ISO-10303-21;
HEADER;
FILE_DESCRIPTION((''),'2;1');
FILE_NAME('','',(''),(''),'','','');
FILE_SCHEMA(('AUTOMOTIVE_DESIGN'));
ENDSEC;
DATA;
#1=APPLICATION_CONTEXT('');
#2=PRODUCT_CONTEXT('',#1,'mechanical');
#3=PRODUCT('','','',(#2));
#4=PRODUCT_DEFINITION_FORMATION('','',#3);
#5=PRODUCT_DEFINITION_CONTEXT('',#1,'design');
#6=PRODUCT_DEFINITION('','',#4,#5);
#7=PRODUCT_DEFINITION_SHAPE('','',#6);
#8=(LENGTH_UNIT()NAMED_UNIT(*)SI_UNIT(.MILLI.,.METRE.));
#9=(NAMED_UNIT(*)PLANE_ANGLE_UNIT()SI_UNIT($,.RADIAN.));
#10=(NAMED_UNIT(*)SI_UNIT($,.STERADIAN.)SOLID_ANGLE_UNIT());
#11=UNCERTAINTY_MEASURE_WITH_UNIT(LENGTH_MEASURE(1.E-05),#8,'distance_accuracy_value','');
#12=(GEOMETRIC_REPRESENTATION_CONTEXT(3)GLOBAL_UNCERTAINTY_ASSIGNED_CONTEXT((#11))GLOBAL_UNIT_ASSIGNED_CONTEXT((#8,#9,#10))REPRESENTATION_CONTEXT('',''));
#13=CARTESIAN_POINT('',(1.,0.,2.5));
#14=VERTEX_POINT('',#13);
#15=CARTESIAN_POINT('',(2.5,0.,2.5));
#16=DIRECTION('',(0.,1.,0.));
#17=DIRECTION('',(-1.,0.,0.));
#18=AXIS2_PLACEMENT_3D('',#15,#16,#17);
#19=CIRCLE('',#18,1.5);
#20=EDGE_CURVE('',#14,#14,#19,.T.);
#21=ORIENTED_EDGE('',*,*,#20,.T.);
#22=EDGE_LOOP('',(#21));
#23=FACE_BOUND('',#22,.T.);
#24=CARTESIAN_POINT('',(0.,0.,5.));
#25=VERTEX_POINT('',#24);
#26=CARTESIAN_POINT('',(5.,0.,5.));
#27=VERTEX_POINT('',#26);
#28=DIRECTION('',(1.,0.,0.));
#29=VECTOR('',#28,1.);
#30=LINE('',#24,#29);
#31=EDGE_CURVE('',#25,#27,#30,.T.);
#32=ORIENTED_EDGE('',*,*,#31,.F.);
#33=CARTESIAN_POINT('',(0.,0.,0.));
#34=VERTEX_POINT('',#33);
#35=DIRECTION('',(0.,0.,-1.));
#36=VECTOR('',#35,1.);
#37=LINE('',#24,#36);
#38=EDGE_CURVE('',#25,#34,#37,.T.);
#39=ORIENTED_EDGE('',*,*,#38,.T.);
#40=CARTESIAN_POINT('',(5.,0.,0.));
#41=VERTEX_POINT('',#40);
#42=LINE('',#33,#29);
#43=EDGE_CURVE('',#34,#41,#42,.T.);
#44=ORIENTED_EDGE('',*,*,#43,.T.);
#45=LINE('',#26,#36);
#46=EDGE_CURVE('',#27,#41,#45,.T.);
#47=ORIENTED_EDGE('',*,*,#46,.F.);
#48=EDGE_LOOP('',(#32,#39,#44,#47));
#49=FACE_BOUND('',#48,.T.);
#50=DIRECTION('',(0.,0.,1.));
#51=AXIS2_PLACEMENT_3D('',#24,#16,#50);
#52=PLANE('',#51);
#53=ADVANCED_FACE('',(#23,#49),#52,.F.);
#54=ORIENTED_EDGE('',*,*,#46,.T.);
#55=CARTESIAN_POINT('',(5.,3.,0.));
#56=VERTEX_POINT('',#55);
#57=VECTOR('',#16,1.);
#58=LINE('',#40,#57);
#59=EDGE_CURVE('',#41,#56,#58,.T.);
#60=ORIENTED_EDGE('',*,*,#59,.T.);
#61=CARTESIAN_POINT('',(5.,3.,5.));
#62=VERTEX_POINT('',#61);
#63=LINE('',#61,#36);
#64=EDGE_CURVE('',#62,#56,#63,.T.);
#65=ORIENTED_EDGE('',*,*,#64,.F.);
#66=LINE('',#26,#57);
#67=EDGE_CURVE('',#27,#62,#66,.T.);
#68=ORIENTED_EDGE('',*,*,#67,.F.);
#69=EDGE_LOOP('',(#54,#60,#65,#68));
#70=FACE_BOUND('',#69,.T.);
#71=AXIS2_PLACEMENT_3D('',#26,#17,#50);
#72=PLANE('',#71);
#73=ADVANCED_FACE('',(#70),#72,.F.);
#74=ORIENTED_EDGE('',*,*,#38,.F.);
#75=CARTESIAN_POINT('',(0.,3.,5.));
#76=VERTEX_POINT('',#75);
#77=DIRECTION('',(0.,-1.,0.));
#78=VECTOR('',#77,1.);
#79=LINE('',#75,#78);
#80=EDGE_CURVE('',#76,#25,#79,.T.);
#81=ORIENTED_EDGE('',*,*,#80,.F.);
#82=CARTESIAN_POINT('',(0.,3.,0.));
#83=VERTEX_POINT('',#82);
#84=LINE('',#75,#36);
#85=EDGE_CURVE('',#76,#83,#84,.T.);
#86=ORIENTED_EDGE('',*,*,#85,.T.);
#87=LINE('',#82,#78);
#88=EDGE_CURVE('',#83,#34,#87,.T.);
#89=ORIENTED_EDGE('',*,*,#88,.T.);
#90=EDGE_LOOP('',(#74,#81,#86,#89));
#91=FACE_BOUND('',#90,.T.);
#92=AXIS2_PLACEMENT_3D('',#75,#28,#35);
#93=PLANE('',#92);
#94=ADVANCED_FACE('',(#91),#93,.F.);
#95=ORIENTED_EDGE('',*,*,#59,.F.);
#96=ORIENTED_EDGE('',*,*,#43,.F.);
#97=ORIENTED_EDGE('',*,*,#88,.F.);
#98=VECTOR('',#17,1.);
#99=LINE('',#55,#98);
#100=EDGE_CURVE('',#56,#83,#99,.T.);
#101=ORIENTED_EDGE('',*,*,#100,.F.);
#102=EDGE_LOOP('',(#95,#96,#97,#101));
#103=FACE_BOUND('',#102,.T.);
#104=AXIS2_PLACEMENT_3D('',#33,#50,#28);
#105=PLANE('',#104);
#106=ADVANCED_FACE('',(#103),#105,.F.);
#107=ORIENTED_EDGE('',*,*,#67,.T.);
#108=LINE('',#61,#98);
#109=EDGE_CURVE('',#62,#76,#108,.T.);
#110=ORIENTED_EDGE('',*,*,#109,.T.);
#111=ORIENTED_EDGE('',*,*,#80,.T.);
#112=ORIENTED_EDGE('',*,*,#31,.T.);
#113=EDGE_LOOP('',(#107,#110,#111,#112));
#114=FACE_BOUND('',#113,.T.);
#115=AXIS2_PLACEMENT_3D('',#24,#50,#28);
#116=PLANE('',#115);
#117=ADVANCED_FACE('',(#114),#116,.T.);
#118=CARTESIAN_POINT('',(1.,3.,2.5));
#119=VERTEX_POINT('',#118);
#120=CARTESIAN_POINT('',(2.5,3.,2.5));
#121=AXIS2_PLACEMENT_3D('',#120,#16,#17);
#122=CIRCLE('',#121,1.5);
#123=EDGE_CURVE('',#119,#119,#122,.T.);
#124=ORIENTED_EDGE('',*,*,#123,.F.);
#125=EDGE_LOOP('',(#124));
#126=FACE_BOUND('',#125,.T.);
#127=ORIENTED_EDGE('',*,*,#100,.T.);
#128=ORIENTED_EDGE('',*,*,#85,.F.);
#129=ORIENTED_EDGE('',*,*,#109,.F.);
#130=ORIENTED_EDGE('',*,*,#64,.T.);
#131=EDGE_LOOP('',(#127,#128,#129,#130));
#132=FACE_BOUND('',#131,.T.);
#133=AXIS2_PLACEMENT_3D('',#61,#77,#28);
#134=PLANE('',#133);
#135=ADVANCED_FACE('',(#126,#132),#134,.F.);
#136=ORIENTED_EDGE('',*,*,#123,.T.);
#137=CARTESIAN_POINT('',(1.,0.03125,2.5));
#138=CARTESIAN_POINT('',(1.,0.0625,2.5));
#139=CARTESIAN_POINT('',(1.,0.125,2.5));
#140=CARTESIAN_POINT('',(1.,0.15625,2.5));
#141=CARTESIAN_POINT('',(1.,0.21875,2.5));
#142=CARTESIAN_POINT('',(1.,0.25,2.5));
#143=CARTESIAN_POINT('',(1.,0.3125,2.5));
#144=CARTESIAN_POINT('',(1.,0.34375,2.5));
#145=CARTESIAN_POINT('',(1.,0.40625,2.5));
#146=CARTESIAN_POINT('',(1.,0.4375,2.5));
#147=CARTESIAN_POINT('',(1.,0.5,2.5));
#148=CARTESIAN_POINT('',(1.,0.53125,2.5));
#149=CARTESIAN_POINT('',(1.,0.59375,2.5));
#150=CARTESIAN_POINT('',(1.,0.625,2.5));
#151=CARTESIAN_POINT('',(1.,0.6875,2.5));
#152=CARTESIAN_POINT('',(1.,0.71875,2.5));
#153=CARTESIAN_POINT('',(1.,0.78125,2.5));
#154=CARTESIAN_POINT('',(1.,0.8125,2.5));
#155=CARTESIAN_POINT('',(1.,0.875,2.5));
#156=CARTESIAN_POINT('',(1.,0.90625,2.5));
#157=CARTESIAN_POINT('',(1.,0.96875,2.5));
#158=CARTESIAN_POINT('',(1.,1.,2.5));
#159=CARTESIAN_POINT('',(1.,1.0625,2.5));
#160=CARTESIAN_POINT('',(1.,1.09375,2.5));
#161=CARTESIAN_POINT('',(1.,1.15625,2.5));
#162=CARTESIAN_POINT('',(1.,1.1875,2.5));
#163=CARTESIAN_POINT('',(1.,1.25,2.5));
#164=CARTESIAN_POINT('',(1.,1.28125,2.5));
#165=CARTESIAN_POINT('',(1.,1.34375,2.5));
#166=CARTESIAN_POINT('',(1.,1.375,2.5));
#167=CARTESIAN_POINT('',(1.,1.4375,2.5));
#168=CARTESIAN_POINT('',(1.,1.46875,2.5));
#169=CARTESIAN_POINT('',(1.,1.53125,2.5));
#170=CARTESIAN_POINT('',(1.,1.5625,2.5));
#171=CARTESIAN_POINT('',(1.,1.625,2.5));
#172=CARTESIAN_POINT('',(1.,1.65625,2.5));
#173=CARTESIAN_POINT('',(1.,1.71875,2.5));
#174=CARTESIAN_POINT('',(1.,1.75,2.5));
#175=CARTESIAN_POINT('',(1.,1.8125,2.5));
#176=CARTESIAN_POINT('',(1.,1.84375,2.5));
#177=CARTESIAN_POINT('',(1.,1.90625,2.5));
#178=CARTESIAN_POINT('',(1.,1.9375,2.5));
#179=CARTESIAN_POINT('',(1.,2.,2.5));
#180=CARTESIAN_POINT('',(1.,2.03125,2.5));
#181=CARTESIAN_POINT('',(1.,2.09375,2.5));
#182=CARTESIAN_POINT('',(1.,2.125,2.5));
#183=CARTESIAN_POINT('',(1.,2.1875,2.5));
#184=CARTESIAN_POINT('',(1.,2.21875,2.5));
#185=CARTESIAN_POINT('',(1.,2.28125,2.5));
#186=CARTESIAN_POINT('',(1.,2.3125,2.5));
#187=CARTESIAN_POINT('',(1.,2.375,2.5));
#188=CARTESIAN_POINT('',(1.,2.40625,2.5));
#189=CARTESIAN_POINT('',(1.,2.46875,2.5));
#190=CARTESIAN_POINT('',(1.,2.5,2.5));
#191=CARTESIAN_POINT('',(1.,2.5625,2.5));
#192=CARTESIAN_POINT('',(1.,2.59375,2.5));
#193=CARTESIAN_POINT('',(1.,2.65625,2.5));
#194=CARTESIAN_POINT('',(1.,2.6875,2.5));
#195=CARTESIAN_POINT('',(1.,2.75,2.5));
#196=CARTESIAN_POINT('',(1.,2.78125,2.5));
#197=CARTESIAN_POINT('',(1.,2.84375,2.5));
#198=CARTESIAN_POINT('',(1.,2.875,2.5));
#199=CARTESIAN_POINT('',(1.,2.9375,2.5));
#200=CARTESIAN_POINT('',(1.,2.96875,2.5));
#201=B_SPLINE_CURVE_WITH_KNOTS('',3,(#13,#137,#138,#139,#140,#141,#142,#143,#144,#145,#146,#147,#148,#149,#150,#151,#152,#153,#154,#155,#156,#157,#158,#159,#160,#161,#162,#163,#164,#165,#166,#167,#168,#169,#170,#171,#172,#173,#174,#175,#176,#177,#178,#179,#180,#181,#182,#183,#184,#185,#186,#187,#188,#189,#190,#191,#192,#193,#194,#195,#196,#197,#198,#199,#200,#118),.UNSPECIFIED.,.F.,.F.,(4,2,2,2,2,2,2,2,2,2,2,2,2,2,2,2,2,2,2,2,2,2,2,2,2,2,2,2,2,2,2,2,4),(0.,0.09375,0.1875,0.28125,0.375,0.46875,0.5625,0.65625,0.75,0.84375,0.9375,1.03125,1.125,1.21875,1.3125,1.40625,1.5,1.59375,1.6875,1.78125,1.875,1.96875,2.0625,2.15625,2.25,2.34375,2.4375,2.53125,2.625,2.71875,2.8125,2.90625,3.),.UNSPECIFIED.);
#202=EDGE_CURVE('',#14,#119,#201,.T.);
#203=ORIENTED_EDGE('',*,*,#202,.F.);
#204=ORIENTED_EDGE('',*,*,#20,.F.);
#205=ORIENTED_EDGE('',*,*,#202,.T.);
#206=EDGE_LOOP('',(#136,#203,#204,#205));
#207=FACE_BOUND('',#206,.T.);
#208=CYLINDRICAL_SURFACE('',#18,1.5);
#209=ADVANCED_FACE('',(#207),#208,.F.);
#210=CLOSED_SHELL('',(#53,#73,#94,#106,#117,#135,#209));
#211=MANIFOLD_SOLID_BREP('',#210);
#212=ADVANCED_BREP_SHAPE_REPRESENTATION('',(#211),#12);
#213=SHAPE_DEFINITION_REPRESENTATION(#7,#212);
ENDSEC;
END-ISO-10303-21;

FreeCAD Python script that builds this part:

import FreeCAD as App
import Part
import Sketcher
from FreeCAD import Vector
Q = App.Units.Quantity


def add_polygon(sketch, points):
    """Adds a closed chain of lines whose ends are joined by coincident constraints."""
    first, n = sketch.GeometryCount, len(points)
    for a, b in zip(points, points[1:] + points[:1]):
        sketch.addGeometry(Part.LineSegment(App.Vector(*a, 0), App.Vector(*b, 0)), False)
    for i in range(n):
        sketch.addConstraint(Sketcher.Constraint("Coincident", first + i, 2, first + (i + 1) % n, 1))

doc = App.newDocument("Part")
params = doc.addObject("Spreadsheet::Sheet", "Params")
for row, (alias, value) in enumerate([
    ("sketch1_width", "5 mm"),
    ("sketch1_height", "3 mm"),
    ("pad1_length", "5 mm"),
    ("sketch2_diameter", "3 mm"),
], start=1):
    params.set(f"A{row}", alias)
    params.set(f"B{row}", "=" + value)
    params.setAlias(f"B{row}", alias)

body = doc.addObject("PartDesign::Body", "Body")

sketch1 = body.newObject("Sketcher::SketchObject", "Sketch")
sketch1.AttachmentSupport = (doc.getObject("XY_Plane"), [""])
sketch1.MapMode = "FlatFace"
add_polygon(sketch1, [(0, 3), (0, 0), (5, 0), (5, 3)])
sketch1.addConstraint(Sketcher.Constraint("Vertical", 0))
sketch1.addConstraint(Sketcher.Constraint("Horizontal", 1))
sketch1.addConstraint(Sketcher.Constraint("Vertical", 2))
sketch1.addConstraint(Sketcher.Constraint("Horizontal", 3))
sketch1.addConstraint(Sketcher.Constraint("Coincident", 0, 2, -1, 1))
sketch1.addConstraint(Sketcher.Constraint("DistanceX", 1, 1, 1, 2, Q("5 mm")))
sketch1.addConstraint(Sketcher.Constraint("DistanceY", 0, 2, 0, 1, Q("3 mm")))
sketch1.setExpression("Constraints[9]", "Params.sketch1_width")
sketch1.setExpression("Constraints[10]", "Params.sketch1_height")
pad1 = body.newObject("PartDesign::Pad", "Pad")
pad1.Profile = sketch1
pad1.setExpression("Length", "Params.pad1_length")

sketch2 = body.newObject("Sketcher::SketchObject", "Sketch001")
sketch2.AttachmentSupport = (doc.getObject("XZ_Plane"), [""])
sketch2.MapMode = "FlatFace"
sketch2.AttachmentOffset = App.Placement(Vector(0, 0, -3), App.Rotation())
sketch2.addGeometry(Part.Circle(Vector(2.5, 2.5, 0), Vector(0, 0, 1), 1.5), False)
sketch2.addConstraint(Sketcher.Constraint("Diameter", 0, Q("3 mm")))
sketch2.addConstraint(Sketcher.Constraint("DistanceX", -1, 1, 0, 3, Q("2.5 mm")))
sketch2.addConstraint(Sketcher.Constraint("DistanceY", -1, 1, 0, 3, Q("2.5 mm")))
sketch2.setExpression("Constraints[0]", "Params.sketch2_diameter")
pocket1 = body.newObject("PartDesign::Pocket", "Pocket")
pocket1.Profile = sketch2
pocket1.Type = "ThroughAll"
pocket1.Reversed = True

doc.recompute()
